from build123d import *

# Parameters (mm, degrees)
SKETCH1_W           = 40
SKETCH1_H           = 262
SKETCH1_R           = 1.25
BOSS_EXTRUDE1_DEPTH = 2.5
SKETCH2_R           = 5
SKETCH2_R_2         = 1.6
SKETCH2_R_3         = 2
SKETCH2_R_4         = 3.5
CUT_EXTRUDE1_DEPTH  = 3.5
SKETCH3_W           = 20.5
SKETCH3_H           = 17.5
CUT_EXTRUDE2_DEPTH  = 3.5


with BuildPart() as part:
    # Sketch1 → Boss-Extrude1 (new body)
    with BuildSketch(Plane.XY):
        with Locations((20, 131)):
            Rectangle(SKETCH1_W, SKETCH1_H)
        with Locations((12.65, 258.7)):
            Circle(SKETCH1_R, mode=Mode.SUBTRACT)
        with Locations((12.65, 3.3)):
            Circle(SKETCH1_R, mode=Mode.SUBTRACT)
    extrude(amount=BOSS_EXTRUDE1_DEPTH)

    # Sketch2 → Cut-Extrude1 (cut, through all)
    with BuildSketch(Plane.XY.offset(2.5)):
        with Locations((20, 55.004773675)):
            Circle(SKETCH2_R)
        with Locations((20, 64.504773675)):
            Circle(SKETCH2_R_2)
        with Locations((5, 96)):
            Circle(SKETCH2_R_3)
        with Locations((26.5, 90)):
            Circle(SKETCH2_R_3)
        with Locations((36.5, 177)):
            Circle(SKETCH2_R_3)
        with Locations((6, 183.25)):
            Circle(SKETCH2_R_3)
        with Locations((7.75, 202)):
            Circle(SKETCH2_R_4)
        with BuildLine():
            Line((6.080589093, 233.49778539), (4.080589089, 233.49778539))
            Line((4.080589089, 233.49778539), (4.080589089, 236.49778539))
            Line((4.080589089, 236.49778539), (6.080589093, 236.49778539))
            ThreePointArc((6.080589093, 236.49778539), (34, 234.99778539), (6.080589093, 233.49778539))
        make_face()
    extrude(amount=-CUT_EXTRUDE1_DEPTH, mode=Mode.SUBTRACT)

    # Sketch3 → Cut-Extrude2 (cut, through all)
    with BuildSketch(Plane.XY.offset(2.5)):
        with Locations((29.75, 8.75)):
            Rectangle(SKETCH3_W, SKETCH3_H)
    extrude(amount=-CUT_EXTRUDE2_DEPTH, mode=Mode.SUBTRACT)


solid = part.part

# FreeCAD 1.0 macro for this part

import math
import FreeCAD as App
import Part
import Sketcher
Q = App.Units.Quantity

doc = App.newDocument("Part")
body = doc.addObject("PartDesign::Body", "Body")

# Sketch on XY plane
sketch1 = doc.addObject("Sketcher::SketchObject", "Sketch")
body.addObject(sketch1)
sketch1.AttachmentSupport = (doc.XY_Plane, [""])
sketch1.MapMode = "FlatFace"
sketch1.addGeometry(Part.LineSegment(App.Vector(0, 262, 0), App.Vector(0, 0, 0)), False)
sketch1.addGeometry(Part.LineSegment(App.Vector(0, 0, 0), App.Vector(40, 0, 0)), False)
sketch1.addGeometry(Part.LineSegment(App.Vector(40, 0, 0), App.Vector(40, 262, 0)), False)
sketch1.addGeometry(Part.LineSegment(App.Vector(40, 262, 0), App.Vector(0, 262, 0)), False)
sketch1.addGeometry(Part.Circle(App.Vector(12.7, 3.3, 0), App.Vector(0, 0, 1), 1.2), False)
sketch1.addGeometry(Part.Circle(App.Vector(12.7, 258.7, 0), App.Vector(0, 0, 1), 1.2), False)
sketch1.addConstraint(Sketcher.Constraint("Coincident", 0, 2, 1, 1))
sketch1.addConstraint(Sketcher.Constraint("Coincident", 1, 2, 2, 1))
sketch1.addConstraint(Sketcher.Constraint("Coincident", 2, 2, 3, 1))
sketch1.addConstraint(Sketcher.Constraint("Coincident", 3, 2, 0, 1))
sketch1.addConstraint(Sketcher.Constraint("Vertical", 0))
sketch1.addConstraint(Sketcher.Constraint("Horizontal", 1))
sketch1.addConstraint(Sketcher.Constraint("Vertical", 2))
sketch1.addConstraint(Sketcher.Constraint("Horizontal", 3))
sketch1.addConstraint(Sketcher.Constraint("Coincident", 0, 2, -1, 1))
sketch1.addConstraint(Sketcher.Constraint("Equal", 4, 5))
sketch1.addConstraint(Sketcher.Constraint("Vertical", 4, 3, 5, 3))
sketch1.addConstraint(Sketcher.Constraint("Diameter", 4, Q("2.5 mm")))
sketch1.addConstraint(Sketcher.Constraint("DistanceX", 1, 1, 1, 2, Q("40 mm")))
sketch1.addConstraint(Sketcher.Constraint("DistanceY", 0, 2, 0, 1, Q("262 mm")))
sketch1.addConstraint(Sketcher.Constraint("DistanceY", -1, 1, 4, 3, Q("3.3 mm")))
sketch1.addConstraint(Sketcher.Constraint("DistanceY", -1, 1, 5, 3, Q("258.7 mm")))
sketch1.addConstraint(Sketcher.Constraint("DistanceX", -1, 1, 4, 3, Q("12.65 mm")))
pad1 = doc.addObject("PartDesign::Pad", "Pad")
body.addObject(pad1)
pad1.Profile = sketch1
pad1.Length = 2.5

# Sketch on XY plane
sketch2 = doc.addObject("Sketcher::SketchObject", "Sketch001")
body.addObject(sketch2)
sketch2.AttachmentSupport = (doc.XY_Plane, [""])
sketch2.MapMode = "FlatFace"
sketch2.AttachmentOffset = App.Placement(App.Vector(0, 0, 2.5), App.Rotation())
sketch2.addGeometry(Part.Circle(App.Vector(20, 55, 0), App.Vector(0, 0, 1), 5), False)
sketch2.addGeometry(Part.Circle(App.Vector(20, 64.5, 0), App.Vector(0, 0, 1), 1.6), False)
sketch2.addGeometry(Part.Circle(App.Vector(5, 96, 0), App.Vector(0, 0, 1), 2), False)
sketch2.addGeometry(Part.Circle(App.Vector(26.5, 90, 0), App.Vector(0, 0, 1), 2), False)
sketch2.addGeometry(Part.Circle(App.Vector(36.5, 177, 0), App.Vector(0, 0, 1), 2), False)
sketch2.addGeometry(Part.Circle(App.Vector(6, 183.2, 0), App.Vector(0, 0, 1), 2), False)
sketch2.addGeometry(Part.Circle(App.Vector(7.8, 202, 0), App.Vector(0, 0, 1), 3.5), False)
sketch2.addGeometry(Part.LineSegment(App.Vector(4.1, 233.5, 0), App.Vector(6.1, 233.5, 0)), False)
sketch2.addGeometry(Part.ArcOfCircle(Part.Circle(App.Vector(20, 235, 0), App.Vector(0, 0, 1), 14), math.radians(-174), math.radians(174)), False)
sketch2.addGeometry(Part.LineSegment(App.Vector(6.1, 236.5, 0), App.Vector(4.1, 236.5, 0)), False)
sketch2.addGeometry(Part.LineSegment(App.Vector(4.1, 236.5, 0), App.Vector(4.1, 233.5, 0)), False)
sketch2.addConstraint(Sketcher.Constraint("Coincident", 7, 2, 8, 1))
sketch2.addConstraint(Sketcher.Constraint("Coincident", 8, 2, 9, 1))
sketch2.addConstraint(Sketcher.Constraint("Coincident", 9, 2, 10, 1))
sketch2.addConstraint(Sketcher.Constraint("Coincident", 10, 2, 7, 1))
sketch2.addConstraint(Sketcher.Constraint("Horizontal", 7))
sketch2.addConstraint(Sketcher.Constraint("Horizontal", 9))
sketch2.addConstraint(Sketcher.Constraint("Vertical", 10))
sketch2.addConstraint(Sketcher.Constraint("Equal", 2, 3))
sketch2.addConstraint(Sketcher.Constraint("Equal", 3, 4))
sketch2.addConstraint(Sketcher.Constraint("Equal", 4, 5))
sketch2.addConstraint(Sketcher.Constraint("Vertical", 0, 3, 1, 3))
sketch2.addConstraint(Sketcher.Constraint("Vertical", 1, 3, 8, 3))
sketch2.addConstraint(Sketcher.Constraint("Vertical", 7, 2, 8, 2))
sketch2.addConstraint(Sketcher.Constraint("Diameter", 0, Q("10 mm")))
sketch2.addConstraint(Sketcher.Constraint("Diameter", 2, Q("4 mm")))
sketch2.addConstraint(Sketcher.Constraint("Diameter", 6, Q("7 mm")))
sketch2.addConstraint(Sketcher.Constraint("Radius", 8, Q("14 mm")))
sketch2.addConstraint(Sketcher.Constraint("Diameter", 1, Q("3.2 mm")))
sketch2.addConstraint(Sketcher.Constraint("DistanceX", 7, 1, 7, 2, Q("2 mm")))
sketch2.addConstraint(Sketcher.Constraint("DistanceY", 10, 2, 10, 1, Q("3 mm")))
sketch2.addConstraint(Sketcher.Constraint("DistanceX", -1, 1, 0, 3, Q("20 mm")))
sketch2.addConstraint(Sketcher.Constraint("DistanceX", -1, 1, 2, 3, Q("5 mm")))
sketch2.addConstraint(Sketcher.Constraint("DistanceY", -1, 1, 2, 3, Q("96 mm")))
sketch2.addConstraint(Sketcher.Constraint("DistanceY", -1, 1, 3, 3, Q("90 mm")))
sketch2.addConstraint(Sketcher.Constraint("DistanceY", -1, 1, 4, 3, Q("177 mm")))
sketch2.addConstraint(Sketcher.Constraint("DistanceX", -1, 1, 5, 3, Q("6 mm")))
sketch2.addConstraint(Sketcher.Constraint("DistanceY", -1, 1, 6, 3, Q("202 mm")))
sketch2.addConstraint(Sketcher.Constraint("DistanceX", 3, 3, 4, 3, Q("10 mm")))
sketch2.addConstraint(Sketcher.Constraint("DistanceX", -1, 1, 3, 3, Q("26.5 mm")))
sketch2.addConstraint(Sketcher.Constraint("DistanceY", 0, 3, 1, 3, Q("9.5 mm")))
sketch2.addConstraint(Sketcher.Constraint("DistanceY", -1, 1, 5, 3, Q("183.25 mm")))
sketch2.addConstraint(Sketcher.Constraint("DistanceX", -1, 1, 6, 3, Q("7.75 mm")))
sketch2.addConstraint(Sketcher.Constraint("DistanceY", -1, 1, 0, 3, Q("55.004774 mm")))
sketch2.addConstraint(Sketcher.Constraint("DistanceY", -1, 1, 8, 3, Q("234.997785 mm")))
pocket1 = doc.addObject("PartDesign::Pocket", "Pocket")
body.addObject(pocket1)
pocket1.Profile = sketch2
pocket1.Type = "ThroughAll"

# Sketch on XY plane
sketch3 = doc.addObject("Sketcher::SketchObject", "Sketch002")
body.addObject(sketch3)
sketch3.AttachmentSupport = (doc.XY_Plane, [""])
sketch3.MapMode = "FlatFace"
sketch3.AttachmentOffset = App.Placement(App.Vector(0, 0, 2.5), App.Rotation())
sketch3.addGeometry(Part.LineSegment(App.Vector(20, 18, 0), App.Vector(20, 0, 0)), False)
sketch3.addGeometry(Part.LineSegment(App.Vector(20, 0, 0), App.Vector(40, 0, 0)), False)
sketch3.addGeometry(Part.LineSegment(App.Vector(40, 0, 0), App.Vector(40, 18, 0)), False)
sketch3.addGeometry(Part.LineSegment(App.Vector(40, 18, 0), App.Vector(20, 18, 0)), False)
sketch3.addConstraint(Sketcher.Constraint("Coincident", 0, 2, 1, 1))
sketch3.addConstraint(Sketcher.Constraint("Coincident", 1, 2, 2, 1))
sketch3.addConstraint(Sketcher.Constraint("Coincident", 2, 2, 3, 1))
sketch3.addConstraint(Sketcher.Constraint("Coincident", 3, 2, 0, 1))
sketch3.addConstraint(Sketcher.Constraint("Vertical", 0))
sketch3.addConstraint(Sketcher.Constraint("Horizontal", 1))
sketch3.addConstraint(Sketcher.Constraint("Vertical", 2))
sketch3.addConstraint(Sketcher.Constraint("Horizontal", 3))
sketch3.addConstraint(Sketcher.Constraint("PointOnObject", 0, 2, -1))
sketch3.addConstraint(Sketcher.Constraint("DistanceX", 1, 1, 1, 2, Q("20.5 mm")))
sketch3.addConstraint(Sketcher.Constraint("DistanceY", 0, 2, 0, 1, Q("17.5 mm")))
sketch3.addConstraint(Sketcher.Constraint("DistanceX", -1, 1, 1, 2, Q("40 mm")))
pocket2 = doc.addObject("PartDesign::Pocket", "Pocket001")
body.addObject(pocket2)
pocket2.Profile = sketch3
pocket2.Type = "ThroughAll"

doc.recompute()
